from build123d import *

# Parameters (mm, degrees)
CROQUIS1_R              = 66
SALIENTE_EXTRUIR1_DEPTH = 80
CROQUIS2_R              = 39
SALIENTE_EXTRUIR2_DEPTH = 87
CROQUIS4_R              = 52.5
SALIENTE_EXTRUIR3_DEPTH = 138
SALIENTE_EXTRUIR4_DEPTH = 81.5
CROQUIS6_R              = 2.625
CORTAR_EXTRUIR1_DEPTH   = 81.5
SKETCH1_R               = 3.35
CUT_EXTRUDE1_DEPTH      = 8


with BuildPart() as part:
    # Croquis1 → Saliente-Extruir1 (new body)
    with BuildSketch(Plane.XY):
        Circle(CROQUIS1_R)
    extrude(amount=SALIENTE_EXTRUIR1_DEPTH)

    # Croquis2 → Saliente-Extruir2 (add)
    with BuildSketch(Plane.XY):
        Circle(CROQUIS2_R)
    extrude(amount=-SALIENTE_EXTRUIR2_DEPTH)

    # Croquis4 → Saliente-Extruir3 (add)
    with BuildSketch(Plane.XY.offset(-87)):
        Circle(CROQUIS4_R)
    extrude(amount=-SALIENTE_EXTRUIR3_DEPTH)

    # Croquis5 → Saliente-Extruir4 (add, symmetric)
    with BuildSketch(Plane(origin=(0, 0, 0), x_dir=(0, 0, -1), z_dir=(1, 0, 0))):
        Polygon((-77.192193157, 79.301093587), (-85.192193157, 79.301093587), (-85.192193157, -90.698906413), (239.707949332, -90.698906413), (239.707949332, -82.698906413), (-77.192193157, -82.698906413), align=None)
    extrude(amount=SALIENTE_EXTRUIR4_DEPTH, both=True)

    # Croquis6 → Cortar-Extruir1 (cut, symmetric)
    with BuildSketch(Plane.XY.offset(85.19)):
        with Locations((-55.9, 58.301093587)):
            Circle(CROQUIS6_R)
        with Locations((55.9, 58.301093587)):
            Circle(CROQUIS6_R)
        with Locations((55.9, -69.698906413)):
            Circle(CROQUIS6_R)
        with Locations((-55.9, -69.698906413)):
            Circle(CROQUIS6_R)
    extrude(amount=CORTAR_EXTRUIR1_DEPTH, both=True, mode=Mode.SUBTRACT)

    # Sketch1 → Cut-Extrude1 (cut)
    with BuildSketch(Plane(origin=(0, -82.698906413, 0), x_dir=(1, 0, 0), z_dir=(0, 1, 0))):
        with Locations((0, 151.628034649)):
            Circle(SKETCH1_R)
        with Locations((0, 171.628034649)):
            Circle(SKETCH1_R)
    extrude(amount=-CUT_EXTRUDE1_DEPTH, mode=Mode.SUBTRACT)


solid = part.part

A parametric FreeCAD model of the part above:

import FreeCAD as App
import Part
import Sketcher

V = App.Vector


def add_polygon(sketch, points):
    """Adds a closed chain of lines whose ends are joined by coincident constraints."""
    first, n = sketch.GeometryCount, len(points)
    for a, b in zip(points, points[1:] + points[:1]):
        sketch.addGeometry(Part.LineSegment(App.Vector(*a, 0), App.Vector(*b, 0)), False)
    for i in range(n):
        sketch.addConstraint(Sketcher.Constraint("Coincident", first + i, 2, first + (i + 1) % n, 1))

doc = App.newDocument("Part")
body = doc.addObject("PartDesign::Body", "Body")

sketch1 = body.newObject("Sketcher::SketchObject", "Sketch")
sketch1.AttachmentSupport = (doc.getObject("XY_Plane"), [""])
sketch1.MapMode = "FlatFace"
sketch1.addGeometry(Part.Circle(V(0, 0, 0), V(0, 0, 1), 66), False)
sketch1.addConstraint([
    Sketcher.Constraint("Coincident", 0, 3, -1, 1),
    Sketcher.Constraint("Diameter", 0, 132.0),
])
pad1 = body.newObject("PartDesign::Pad", "Pad")
pad1.Profile = sketch1
pad1.Length = 80

sketch2 = body.newObject("Sketcher::SketchObject", "Sketch001")
sketch2.AttachmentSupport = (doc.getObject("XY_Plane"), [""])
sketch2.MapMode = "FlatFace"
sketch2.addGeometry(Part.Circle(V(0, 0, 0), V(0, 0, 1), 39), False)
sketch2.addConstraint([
    Sketcher.Constraint("Coincident", 0, 3, -1, 1),
    Sketcher.Constraint("Diameter", 0, 78.0),
])
pad2 = body.newObject("PartDesign::Pad", "Pad001")
pad2.Profile = sketch2
pad2.Length = 87
pad2.Reversed = True

sketch3 = body.newObject("Sketcher::SketchObject", "Sketch002")
sketch3.AttachmentSupport = (doc.getObject("XY_Plane"), [""])
sketch3.MapMode = "FlatFace"
sketch3.AttachmentOffset = App.Placement(V(0, 0, -87), App.Rotation())
sketch3.addGeometry(Part.Circle(V(0, 0, 0), V(0, 0, 1), 52), False)
sketch3.addConstraint([
    Sketcher.Constraint("Coincident", 0, 3, -1, 1),
    Sketcher.Constraint("Diameter", 0, 105.0),
])
pad3 = body.newObject("PartDesign::Pad", "Pad002")
pad3.Profile = sketch3
pad3.Length = 138
pad3.Reversed = True

sketch4 = body.newObject("Sketcher::SketchObject", "Sketch003")
sketch4.AttachmentSupport = (doc.getObject("YZ_Plane"), [""])
sketch4.MapMode = "FlatFace"
add_polygon(sketch4, [(79, 77), (79, 85), (-91, 85), (-91, -240), (-83, -240), (-83, 77)])
sketch4.addConstraint([
    Sketcher.Constraint("Vertical", 0),
    Sketcher.Constraint("Horizontal", 1),
    Sketcher.Constraint("Vertical", 2),
    Sketcher.Constraint("Horizontal", 3),
    Sketcher.Constraint("Vertical", 4),
    Sketcher.Constraint("Horizontal", 5),
    Sketcher.Constraint("Equal", 3, 0),
    Sketcher.Constraint("DistanceX", 1, 2, 1, 1, 170.0),
    Sketcher.Constraint("DistanceX", 3, 1, 3, 2, 8.0),
    Sketcher.Constraint("DistanceY", 2, 2, 2, 1, 324.900142),
    Sketcher.Constraint("DistanceY", 2, 2, -1, 1, 239.707949),
    Sketcher.Constraint("DistanceX", -1, 1, 0, 2, 79.301094),
])
pad4 = body.newObject("PartDesign::Pad", "Pad003")
pad4.Profile = sketch4
pad4.Length = 163
pad4.Midplane = True

sketch5 = body.newObject("Sketcher::SketchObject", "Sketch004")
sketch5.AttachmentSupport = (doc.getObject("XY_Plane"), [""])
sketch5.MapMode = "FlatFace"
sketch5.AttachmentOffset = App.Placement(V(0, 0, 85.19), App.Rotation())
sketch5.addGeometry([
    Part.Circle(V(-55.9, 58.3, 0), V(0, 0, 1), 2.6),
    Part.Circle(V(55.9, 58.3, 0), V(0, 0, 1), 2.6),
    Part.Circle(V(55.9, -69.7, 0), V(0, 0, 1), 2.6),
    Part.Circle(V(-55.9, -69.7, 0), V(0, 0, 1), 2.6),
], False)
sketch5.addConstraint([
    Sketcher.Constraint("Equal", 0, 1),
    Sketcher.Constraint("Equal", 1, 2),
    Sketcher.Constraint("Equal", 2, 3),
    Sketcher.Constraint("Symmetric", 0, 3, 1, 3, -2),
    Sketcher.Constraint("Symmetric", 2, 3, 3, 3, -2),
    Sketcher.Constraint("Vertical", 1, 3, 2, 3),
    Sketcher.Constraint("Diameter", 0, 5.25),
    Sketcher.Constraint("DistanceY", 2, 3, 1, 3, 128.0),
    Sketcher.Constraint("DistanceX", 0, 3, -1, 1, 55.9),
    Sketcher.Constraint("DistanceY", -1, 1, 0, 3, 58.301094),
])
pocket1 = body.newObject("PartDesign::Pocket", "Pocket")
pocket1.Profile = sketch5
pocket1.Length = 163
pocket1.Midplane = True

sketch6 = body.newObject("Sketcher::SketchObject", "Sketch005")
sketch6.AttachmentSupport = (doc.getObject("XZ_Plane"), [""])
sketch6.MapMode = "FlatFace"
sketch6.AttachmentOffset = App.Placement(V(0, 0, 82.698906), App.Rotation())
sketch6.addGeometry([
    Part.Circle(V(0, -151.6, 0), V(0, 0, 1), 3.4),
    Part.Circle(V(0, -171.6, 0), V(0, 0, 1), 3.4),
], False)
sketch6.addConstraint([
    Sketcher.Constraint("Equal", 0, 1),
    Sketcher.Constraint("PointOnObject", 0, 3, -2),
    Sketcher.Constraint("PointOnObject", 1, 3, -2),
    Sketcher.Constraint("Diameter", 0, 6.7),
    Sketcher.Constraint("DistanceY", 1, 3, 0, 3, 20.0),
    Sketcher.Constraint("DistanceY", 0, 3, -1, 1, 151.628035),
])
pocket2 = body.newObject("PartDesign::Pocket", "Pocket001")
pocket2.Profile = sketch6
pocket2.Length = 8
pocket2.Reversed = True

doc.recompute()
